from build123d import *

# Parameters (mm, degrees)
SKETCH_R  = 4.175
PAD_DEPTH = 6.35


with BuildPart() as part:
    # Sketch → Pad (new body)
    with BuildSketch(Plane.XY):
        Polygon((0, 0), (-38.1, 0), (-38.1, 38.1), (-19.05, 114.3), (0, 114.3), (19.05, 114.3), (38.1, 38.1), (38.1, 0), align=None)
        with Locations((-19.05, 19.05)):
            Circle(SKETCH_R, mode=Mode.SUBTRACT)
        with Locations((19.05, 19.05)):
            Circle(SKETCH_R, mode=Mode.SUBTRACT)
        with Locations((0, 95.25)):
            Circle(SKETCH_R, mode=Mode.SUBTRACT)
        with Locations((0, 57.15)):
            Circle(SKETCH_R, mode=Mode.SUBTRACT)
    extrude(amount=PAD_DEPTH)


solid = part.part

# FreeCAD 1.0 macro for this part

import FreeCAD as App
import Part
import Sketcher
Q = App.Units.Quantity

doc = App.newDocument("Part")
body = doc.addObject("PartDesign::Body", "Body")

sketch1 = body.newObject("Sketcher::SketchObject", "Sketch")
sketch1.AttachmentSupport = (doc.getObject("XY_Plane"), [""])
sketch1.MapMode = "FlatFace"
sketch1.addGeometry(Part.LineSegment(App.Vector(-38.1, 0, 0), App.Vector(38.1, 0, 0)), False)
sketch1.addGeometry(Part.LineSegment(App.Vector(38.1, 0, 0), App.Vector(38.1, 38.1, 0)), False)
sketch1.addGeometry(Part.LineSegment(App.Vector(38.1, 38.1, 0), App.Vector(19.05, 114.3, 0)), False)
sketch1.addGeometry(Part.LineSegment(App.Vector(19.05, 114.3, 0), App.Vector(-19.05, 114.3, 0)), False)
sketch1.addGeometry(Part.LineSegment(App.Vector(-19.05, 114.3, 0), App.Vector(-38.1, 38.1, 0)), False)
sketch1.addGeometry(Part.LineSegment(App.Vector(-38.1, 38.1, 0), App.Vector(-38.1, 0, 0)), False)
sketch1.addGeometry(Part.Circle(App.Vector(19.05, 19.05, 0), App.Vector(0, 0, 1), 4.175), False)
sketch1.addGeometry(Part.Circle(App.Vector(-19.05, 19.05, 0), App.Vector(0, 0, 1), 4.175), False)
sketch1.addGeometry(Part.Circle(App.Vector(0, 57.15, 0), App.Vector(0, 0, 1), 4.175), False)
sketch1.addGeometry(Part.Circle(App.Vector(0, 95.25, 0), App.Vector(0, 0, 1), 4.175), False)
sketch1.addConstraint(Sketcher.Constraint("Coincident", 0, 2, 1, 1))
sketch1.addConstraint(Sketcher.Constraint("Coincident", 1, 2, 2, 1))
sketch1.addConstraint(Sketcher.Constraint("Coincident", 2, 2, 3, 1))
sketch1.addConstraint(Sketcher.Constraint("Coincident", 3, 2, 4, 1))
sketch1.addConstraint(Sketcher.Constraint("Coincident", 4, 2, 5, 1))
sketch1.addConstraint(Sketcher.Constraint("Coincident", 5, 2, 0, 1))
sketch1.addConstraint(Sketcher.Constraint("Horizontal", 0))
sketch1.addConstraint(Sketcher.Constraint("Vertical", 1))
sketch1.addConstraint(Sketcher.Constraint("Horizontal", 3))
sketch1.addConstraint(Sketcher.Constraint("Vertical", 5))
sketch1.addConstraint(Sketcher.Constraint("Equal", 6, 7))
sketch1.addConstraint(Sketcher.Constraint("Equal", 7, 8))
sketch1.addConstraint(Sketcher.Constraint("Equal", 8, 9))
sketch1.addConstraint(Sketcher.Constraint("Symmetric", 0, 2, 5, 2, -1, 1))
sketch1.addConstraint(Sketcher.Constraint("Symmetric", 6, 3, 7, 3, -2))
sketch1.addConstraint(Sketcher.Constraint("PointOnObject", 8, 3, -2))
sketch1.addConstraint(Sketcher.Constraint("PointOnObject", 9, 3, -2))
sketch1.addConstraint(Sketcher.Constraint("Horizontal", 1, 2, 4, 2))
sketch1.addConstraint(Sketcher.Constraint("Vertical", 6, 3, 2, 2))
sketch1.addConstraint(Sketcher.Constraint("Vertical", 7, 3, 3, 2))
sketch1.addConstraint(Sketcher.Constraint("Equal", 3, 1))
sketch1.addConstraint(Sketcher.Constraint("DistanceX", 0, 1, 0, 2, Q("3 in")))
sketch1.addConstraint(Sketcher.Constraint("DistanceX", 3, 2, 3, 1, Q("1.5 in")))
sketch1.addConstraint(Sketcher.Constraint("DistanceY", 6, 3, 9, 3, Q("3 in")))
sketch1.addConstraint(Sketcher.Constraint("DistanceY", 1, 2, 2, 2, Q("3 in")))
sketch1.addConstraint(Sketcher.Constraint("DistanceY", 6, 3, 8, 3, Q("1.5 in")))
sketch1.addConstraint(Sketcher.Constraint("Diameter", 6, Q("8.35 mm")))
sketch1.addConstraint(Sketcher.Constraint("DistanceY", -1, 1, 6, 3, Q("0.75 in")))
pad1 = body.newObject("PartDesign::Pad", "Pad")
pad1.Profile = sketch1
pad1.Length = Q("0.25 in")

doc.recompute()
